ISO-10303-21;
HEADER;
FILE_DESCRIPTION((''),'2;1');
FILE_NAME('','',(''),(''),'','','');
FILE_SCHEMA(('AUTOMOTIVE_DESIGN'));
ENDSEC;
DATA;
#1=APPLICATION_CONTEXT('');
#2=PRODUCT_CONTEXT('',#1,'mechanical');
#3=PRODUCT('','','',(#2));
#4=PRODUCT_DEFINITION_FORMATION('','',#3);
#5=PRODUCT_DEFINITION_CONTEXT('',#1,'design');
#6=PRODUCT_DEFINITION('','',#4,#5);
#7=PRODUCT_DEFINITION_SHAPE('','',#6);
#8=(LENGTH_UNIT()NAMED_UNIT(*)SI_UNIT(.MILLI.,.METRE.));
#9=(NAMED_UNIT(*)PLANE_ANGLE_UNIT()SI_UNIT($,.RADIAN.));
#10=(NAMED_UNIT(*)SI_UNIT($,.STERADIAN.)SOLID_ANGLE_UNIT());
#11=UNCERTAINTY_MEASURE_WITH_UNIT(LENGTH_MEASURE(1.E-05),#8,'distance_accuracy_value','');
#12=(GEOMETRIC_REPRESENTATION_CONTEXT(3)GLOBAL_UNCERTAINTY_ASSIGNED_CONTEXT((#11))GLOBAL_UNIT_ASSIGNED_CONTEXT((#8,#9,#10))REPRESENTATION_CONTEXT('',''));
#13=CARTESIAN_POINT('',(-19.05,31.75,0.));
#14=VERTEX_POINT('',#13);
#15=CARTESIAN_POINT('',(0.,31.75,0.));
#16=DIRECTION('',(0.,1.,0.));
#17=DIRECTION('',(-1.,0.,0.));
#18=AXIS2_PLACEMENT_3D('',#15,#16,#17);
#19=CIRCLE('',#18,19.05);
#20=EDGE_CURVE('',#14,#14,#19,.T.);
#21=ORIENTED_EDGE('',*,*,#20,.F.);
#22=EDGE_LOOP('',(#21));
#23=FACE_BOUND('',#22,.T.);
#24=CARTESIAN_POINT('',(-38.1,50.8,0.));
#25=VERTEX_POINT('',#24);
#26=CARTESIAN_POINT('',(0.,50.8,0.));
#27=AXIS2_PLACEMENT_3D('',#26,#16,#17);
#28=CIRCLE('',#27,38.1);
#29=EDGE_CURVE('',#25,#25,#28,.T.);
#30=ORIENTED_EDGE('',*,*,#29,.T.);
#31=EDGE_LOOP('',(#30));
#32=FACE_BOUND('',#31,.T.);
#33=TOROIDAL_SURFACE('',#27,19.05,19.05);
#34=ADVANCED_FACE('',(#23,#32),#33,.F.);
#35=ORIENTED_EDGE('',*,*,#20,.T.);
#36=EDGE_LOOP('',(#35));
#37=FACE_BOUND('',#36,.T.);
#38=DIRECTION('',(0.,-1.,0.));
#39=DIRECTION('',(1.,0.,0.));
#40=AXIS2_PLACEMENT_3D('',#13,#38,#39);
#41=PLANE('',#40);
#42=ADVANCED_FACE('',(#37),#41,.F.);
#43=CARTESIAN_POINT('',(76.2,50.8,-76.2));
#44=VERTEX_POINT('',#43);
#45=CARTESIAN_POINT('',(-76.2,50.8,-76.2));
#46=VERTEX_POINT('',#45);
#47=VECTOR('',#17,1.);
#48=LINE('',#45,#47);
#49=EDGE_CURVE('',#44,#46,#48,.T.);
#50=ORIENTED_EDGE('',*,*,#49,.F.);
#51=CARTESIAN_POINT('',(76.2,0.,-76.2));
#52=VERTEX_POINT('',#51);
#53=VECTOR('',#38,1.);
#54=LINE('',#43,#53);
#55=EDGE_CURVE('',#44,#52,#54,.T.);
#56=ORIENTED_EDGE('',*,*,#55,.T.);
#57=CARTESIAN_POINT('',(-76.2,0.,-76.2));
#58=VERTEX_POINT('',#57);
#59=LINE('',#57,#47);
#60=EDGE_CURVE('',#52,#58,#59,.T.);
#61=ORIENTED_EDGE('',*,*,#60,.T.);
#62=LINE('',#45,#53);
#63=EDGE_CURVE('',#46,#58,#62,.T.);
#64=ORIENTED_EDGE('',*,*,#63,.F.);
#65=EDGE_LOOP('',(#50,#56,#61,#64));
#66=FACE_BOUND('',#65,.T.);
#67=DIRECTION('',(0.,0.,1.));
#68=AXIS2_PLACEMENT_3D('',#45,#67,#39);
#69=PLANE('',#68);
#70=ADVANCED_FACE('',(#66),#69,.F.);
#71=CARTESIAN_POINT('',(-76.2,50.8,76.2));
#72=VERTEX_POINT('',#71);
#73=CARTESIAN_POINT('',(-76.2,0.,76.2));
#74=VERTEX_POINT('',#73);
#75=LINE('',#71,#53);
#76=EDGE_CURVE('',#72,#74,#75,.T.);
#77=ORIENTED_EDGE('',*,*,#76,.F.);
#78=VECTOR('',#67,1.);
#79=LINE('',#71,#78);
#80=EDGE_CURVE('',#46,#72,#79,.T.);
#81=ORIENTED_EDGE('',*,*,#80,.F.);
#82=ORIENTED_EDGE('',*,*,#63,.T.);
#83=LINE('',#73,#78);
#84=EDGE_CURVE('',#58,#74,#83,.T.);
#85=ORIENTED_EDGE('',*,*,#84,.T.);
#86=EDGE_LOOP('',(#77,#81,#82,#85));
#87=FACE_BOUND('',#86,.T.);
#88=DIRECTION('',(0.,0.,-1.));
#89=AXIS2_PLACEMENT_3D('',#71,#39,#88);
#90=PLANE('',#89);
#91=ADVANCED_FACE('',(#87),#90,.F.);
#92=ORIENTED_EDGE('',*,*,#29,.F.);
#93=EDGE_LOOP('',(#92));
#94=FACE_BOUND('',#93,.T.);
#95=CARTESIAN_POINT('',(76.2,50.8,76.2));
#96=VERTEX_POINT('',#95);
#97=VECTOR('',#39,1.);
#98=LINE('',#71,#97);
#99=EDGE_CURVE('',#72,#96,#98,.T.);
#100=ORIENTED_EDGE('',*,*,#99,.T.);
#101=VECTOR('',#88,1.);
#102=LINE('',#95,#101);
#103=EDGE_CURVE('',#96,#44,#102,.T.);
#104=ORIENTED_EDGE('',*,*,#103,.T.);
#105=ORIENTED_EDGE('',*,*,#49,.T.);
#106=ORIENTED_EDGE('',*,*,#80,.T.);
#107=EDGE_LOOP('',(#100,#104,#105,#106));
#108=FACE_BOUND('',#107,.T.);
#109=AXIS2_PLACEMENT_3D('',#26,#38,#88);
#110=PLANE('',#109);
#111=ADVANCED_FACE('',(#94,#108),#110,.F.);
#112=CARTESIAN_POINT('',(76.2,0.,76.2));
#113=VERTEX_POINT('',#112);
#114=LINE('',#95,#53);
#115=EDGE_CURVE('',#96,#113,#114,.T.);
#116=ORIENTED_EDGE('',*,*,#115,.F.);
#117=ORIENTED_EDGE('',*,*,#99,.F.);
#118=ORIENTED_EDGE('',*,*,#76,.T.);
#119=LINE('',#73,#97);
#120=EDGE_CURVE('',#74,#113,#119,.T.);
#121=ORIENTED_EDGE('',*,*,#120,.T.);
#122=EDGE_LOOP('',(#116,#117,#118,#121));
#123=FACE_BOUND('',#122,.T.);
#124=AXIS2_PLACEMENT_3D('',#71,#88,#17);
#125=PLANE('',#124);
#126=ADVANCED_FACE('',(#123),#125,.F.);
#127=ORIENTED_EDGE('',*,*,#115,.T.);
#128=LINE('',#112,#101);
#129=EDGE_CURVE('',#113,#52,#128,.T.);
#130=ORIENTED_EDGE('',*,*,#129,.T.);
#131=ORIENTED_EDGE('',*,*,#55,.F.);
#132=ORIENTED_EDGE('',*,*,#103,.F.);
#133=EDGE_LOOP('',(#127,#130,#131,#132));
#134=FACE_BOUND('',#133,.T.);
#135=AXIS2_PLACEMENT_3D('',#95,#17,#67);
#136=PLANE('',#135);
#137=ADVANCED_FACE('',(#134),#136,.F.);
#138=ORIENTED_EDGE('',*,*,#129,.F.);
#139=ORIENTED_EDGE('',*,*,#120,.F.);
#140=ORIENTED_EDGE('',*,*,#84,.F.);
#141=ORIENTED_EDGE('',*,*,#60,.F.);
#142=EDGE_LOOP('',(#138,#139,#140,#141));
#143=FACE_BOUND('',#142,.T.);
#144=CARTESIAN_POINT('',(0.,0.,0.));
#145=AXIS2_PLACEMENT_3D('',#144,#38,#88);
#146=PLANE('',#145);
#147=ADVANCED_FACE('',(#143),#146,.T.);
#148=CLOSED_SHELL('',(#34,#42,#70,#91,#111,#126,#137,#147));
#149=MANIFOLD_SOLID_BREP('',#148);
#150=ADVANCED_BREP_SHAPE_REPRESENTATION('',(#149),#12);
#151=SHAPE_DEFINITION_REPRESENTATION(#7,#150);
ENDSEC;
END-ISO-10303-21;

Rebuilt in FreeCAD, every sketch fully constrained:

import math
import FreeCAD as App
import Part
import Sketcher
Q = App.Units.Quantity

doc = App.newDocument("Part")
body = doc.addObject("PartDesign::Body", "Body")

sketch1 = body.newObject("Sketcher::SketchObject", "Sketch")
sketch1.AttachmentSupport = (doc.getObject("XZ_Plane"), [""])
sketch1.MapMode = "FlatFace"
sketch1.addGeometry([
    Part.LineSegment(App.Vector(-76, -76, 0), App.Vector(-76, 76, 0)),
    Part.LineSegment(App.Vector(-76, 76, 0), App.Vector(76, 76, 0)),
    Part.LineSegment(App.Vector(76, 76, 0), App.Vector(76, -76, 0)),
    Part.LineSegment(App.Vector(76, -76, 0), App.Vector(-76, -76, 0)),
], False)
sketch1.addConstraint([
    Sketcher.Constraint("Coincident", 0, 2, 1, 1),
    Sketcher.Constraint("Coincident", 1, 2, 2, 1),
    Sketcher.Constraint("Coincident", 2, 2, 3, 1),
    Sketcher.Constraint("Coincident", 3, 2, 0, 1),
    Sketcher.Constraint("Vertical", 0),
    Sketcher.Constraint("Horizontal", 1),
    Sketcher.Constraint("Vertical", 2),
    Sketcher.Constraint("Horizontal", 3),
    Sketcher.Constraint("Symmetric", 0, 2, 2, 2, -1, 1),
    Sketcher.Constraint("Equal", 3, 0),
    Sketcher.Constraint("DistanceX", 1, 1, 1, 2, Q("6 in")),
])
pad1 = body.newObject("PartDesign::Pad", "Pad")
pad1.Profile = sketch1
pad1.Length = Q("2 in")
pad1.Reversed = True

sketch2 = body.newObject("Sketcher::SketchObject", "Sketch001")
sketch2.AttachmentSupport = (doc.getObject("XY_Plane"), [""])
sketch2.MapMode = "FlatFace"
sketch2.addGeometry([
    Part.LineSegment(App.Vector(-19, 32, 0), App.Vector(0, 32, 0)),
    Part.LineSegment(App.Vector(0, 32, 0), App.Vector(0, 51, 0)),
    Part.LineSegment(App.Vector(0, 51, 0), App.Vector(-38, 51, 0)),
    Part.ArcOfCircle(Part.Circle(App.Vector(-19, 51, 0), App.Vector(0, 0, 1), 19), math.radians(180), math.radians(270)),
], False)
sketch2.addConstraint([
    Sketcher.Constraint("Coincident", 0, 2, 1, 1),
    Sketcher.Constraint("Coincident", 1, 2, 2, 1),
    Sketcher.Constraint("Coincident", 2, 2, 3, 1),
    Sketcher.Constraint("Tangent", 3, 2, 0, 1),
    Sketcher.Constraint("Horizontal", 0),
    Sketcher.Constraint("Vertical", 1),
    Sketcher.Constraint("Horizontal", 2),
    Sketcher.Constraint("PointOnObject", 0, 2, -2),
    Sketcher.Constraint("Horizontal", 3, 3, 1, 2),
    Sketcher.Constraint("Equal", 0, 1),
    Sketcher.Constraint("Radius", 3, Q("0.75 in")),
    Sketcher.Constraint("DistanceY", -1, 1, 3, 3, Q("2 in")),
])
groove = body.newObject("PartDesign::Groove", "Groove")
groove.Profile = sketch2
groove.ReferenceAxis = (sketch2, ["V_Axis"])
groove.Angle = 360

doc.recompute()
